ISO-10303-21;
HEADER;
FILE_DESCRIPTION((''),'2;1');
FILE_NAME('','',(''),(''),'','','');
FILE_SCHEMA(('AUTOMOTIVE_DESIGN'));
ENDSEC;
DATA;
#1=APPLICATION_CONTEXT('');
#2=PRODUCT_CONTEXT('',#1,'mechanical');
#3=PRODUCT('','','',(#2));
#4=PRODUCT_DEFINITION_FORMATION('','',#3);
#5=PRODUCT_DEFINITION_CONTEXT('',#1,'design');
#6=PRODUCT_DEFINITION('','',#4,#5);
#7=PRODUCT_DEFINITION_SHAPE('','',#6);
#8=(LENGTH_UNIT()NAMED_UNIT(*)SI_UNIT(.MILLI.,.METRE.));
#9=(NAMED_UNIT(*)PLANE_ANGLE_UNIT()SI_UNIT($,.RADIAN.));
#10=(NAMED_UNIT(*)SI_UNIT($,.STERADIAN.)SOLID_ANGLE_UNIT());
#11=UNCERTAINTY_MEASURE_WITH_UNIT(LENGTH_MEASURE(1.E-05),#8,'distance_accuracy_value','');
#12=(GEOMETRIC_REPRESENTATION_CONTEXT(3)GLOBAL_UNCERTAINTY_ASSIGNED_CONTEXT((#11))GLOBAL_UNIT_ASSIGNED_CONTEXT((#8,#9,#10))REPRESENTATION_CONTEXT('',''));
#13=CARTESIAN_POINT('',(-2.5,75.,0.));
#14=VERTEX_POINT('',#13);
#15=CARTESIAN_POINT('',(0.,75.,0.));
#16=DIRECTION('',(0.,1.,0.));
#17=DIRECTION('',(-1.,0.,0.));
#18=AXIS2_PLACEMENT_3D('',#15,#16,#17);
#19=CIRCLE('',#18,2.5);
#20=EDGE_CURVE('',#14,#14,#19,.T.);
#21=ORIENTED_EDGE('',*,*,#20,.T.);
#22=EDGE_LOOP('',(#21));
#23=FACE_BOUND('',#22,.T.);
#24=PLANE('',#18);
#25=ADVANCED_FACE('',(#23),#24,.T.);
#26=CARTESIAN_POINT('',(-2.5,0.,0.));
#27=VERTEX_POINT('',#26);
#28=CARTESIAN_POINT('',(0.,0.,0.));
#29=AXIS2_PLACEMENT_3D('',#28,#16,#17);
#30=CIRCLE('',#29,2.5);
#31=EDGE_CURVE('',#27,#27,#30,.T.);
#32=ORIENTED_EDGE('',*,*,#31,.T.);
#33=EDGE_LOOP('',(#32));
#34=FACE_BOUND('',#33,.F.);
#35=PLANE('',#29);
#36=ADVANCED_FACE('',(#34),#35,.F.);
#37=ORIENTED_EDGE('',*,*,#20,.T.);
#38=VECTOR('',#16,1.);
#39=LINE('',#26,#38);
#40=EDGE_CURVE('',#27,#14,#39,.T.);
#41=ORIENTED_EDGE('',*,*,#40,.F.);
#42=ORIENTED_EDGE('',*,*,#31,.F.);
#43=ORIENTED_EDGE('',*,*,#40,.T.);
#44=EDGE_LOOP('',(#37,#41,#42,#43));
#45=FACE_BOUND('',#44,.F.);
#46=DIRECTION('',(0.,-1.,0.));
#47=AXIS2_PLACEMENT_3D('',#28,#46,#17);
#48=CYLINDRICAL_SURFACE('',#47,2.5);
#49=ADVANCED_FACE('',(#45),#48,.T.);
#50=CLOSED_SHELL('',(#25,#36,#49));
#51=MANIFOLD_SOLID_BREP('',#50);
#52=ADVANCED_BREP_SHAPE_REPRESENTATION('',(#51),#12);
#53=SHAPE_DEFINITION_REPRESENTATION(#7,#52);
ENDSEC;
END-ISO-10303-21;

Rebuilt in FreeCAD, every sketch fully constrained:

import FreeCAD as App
import Part
import Sketcher

V = App.Vector

doc = App.newDocument("Part")
params = doc.addObject("Spreadsheet::Sheet", "Params")
for row, (alias, value) in enumerate([
    ("sketch1_diameter", "5 mm"),
    ("pad1_length", "75 mm"),
], start=1):
    params.set(f"A{row}", alias)
    params.set(f"B{row}", "=" + value)
    params.setAlias(f"B{row}", alias)

body = doc.addObject("PartDesign::Body", "Body")

# Sketch on XZ plane
sketch1 = doc.addObject("Sketcher::SketchObject", "Sketch")
body.addObject(sketch1)
sketch1.AttachmentSupport = (doc.XZ_Plane, [""])
sketch1.MapMode = "FlatFace"
sketch1.addGeometry(Part.Circle(V(0, 0, 0), V(0, 0, 1), 2.5), False)
sketch1.addConstraint([
    Sketcher.Constraint("Coincident", 0, 3, -1, 1),
    Sketcher.Constraint("Diameter", 0, 5.0),
])
sketch1.setExpression("Constraints[1]", "Params.sketch1_diameter")
pad1 = doc.addObject("PartDesign::Pad", "Pad")
body.addObject(pad1)
pad1.Profile = sketch1
pad1.setExpression("Length", "Params.pad1_length")
pad1.Reversed = True

doc.recompute()
